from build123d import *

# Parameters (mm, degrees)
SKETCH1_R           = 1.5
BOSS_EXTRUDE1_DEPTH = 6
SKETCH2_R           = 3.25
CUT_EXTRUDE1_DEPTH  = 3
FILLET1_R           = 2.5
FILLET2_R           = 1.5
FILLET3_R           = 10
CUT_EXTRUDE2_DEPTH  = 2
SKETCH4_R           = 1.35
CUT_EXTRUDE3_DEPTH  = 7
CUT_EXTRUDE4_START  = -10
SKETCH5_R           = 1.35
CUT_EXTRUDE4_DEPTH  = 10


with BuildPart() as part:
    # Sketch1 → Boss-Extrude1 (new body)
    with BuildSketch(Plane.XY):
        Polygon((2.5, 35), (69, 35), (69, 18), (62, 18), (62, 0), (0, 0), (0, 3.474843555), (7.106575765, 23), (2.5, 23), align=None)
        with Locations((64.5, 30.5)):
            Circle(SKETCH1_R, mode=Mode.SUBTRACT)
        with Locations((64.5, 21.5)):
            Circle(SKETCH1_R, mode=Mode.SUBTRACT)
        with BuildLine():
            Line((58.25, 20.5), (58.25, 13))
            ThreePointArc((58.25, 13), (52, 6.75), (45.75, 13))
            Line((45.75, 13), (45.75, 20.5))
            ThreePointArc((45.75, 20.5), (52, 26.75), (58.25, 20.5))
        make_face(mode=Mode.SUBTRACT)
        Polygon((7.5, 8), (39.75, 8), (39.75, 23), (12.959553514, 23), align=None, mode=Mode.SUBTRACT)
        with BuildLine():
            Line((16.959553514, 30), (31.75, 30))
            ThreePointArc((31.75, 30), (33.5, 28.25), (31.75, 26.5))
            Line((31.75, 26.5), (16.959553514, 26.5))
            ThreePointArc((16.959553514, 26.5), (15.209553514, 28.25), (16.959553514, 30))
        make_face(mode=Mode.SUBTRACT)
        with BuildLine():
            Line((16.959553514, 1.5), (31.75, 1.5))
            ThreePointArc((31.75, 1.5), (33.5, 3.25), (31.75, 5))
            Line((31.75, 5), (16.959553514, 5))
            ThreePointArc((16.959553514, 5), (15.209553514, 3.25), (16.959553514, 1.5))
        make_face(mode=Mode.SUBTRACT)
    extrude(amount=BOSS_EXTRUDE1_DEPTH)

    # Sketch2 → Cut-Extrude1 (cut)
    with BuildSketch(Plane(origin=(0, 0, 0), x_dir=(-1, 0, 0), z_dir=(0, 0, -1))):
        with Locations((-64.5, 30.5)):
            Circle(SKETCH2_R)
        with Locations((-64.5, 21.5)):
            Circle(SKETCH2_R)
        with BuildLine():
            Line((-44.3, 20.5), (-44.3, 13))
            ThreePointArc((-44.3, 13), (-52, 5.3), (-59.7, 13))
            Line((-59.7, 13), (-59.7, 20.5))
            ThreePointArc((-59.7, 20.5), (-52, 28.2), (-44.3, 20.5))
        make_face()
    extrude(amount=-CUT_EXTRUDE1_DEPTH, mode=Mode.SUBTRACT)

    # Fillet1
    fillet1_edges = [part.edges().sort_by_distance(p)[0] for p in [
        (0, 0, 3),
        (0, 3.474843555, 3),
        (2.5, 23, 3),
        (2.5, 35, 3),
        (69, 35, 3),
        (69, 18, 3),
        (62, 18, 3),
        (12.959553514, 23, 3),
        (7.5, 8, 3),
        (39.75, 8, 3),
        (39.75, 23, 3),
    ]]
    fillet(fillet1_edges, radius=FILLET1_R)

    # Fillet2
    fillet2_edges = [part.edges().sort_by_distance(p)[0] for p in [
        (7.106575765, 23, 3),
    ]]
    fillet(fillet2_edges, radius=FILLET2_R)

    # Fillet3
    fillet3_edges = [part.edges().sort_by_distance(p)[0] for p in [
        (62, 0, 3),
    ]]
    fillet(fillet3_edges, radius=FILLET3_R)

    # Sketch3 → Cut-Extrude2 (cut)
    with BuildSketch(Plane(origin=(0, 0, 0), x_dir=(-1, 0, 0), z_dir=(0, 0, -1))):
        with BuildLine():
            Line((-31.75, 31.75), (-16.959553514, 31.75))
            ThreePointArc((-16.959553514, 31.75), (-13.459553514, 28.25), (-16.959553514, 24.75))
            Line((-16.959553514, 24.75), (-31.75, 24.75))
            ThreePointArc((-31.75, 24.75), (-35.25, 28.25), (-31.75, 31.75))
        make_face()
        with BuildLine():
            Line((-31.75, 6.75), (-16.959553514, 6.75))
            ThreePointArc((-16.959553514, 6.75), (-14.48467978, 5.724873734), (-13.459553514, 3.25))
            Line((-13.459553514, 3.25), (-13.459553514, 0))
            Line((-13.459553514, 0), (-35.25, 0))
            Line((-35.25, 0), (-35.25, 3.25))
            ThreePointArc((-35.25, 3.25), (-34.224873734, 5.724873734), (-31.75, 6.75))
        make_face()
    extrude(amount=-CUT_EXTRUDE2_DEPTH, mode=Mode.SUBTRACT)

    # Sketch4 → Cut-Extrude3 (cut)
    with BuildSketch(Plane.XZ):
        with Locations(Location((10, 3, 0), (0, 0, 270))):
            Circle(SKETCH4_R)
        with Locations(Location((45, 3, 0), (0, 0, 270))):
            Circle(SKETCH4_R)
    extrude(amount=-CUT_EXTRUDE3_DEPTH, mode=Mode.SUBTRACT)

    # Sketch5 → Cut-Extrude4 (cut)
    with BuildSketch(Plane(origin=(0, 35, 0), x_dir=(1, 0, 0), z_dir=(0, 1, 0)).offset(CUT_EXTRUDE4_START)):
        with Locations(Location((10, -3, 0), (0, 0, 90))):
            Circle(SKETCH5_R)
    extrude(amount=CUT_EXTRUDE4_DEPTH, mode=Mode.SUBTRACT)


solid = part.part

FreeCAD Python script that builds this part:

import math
import FreeCAD as App
import Part
import Sketcher

V = App.Vector
Q = App.Units.Quantity


def edges_at(feature, points):
    """Names of the edges that pass closest to the given points."""
    edges = feature.Shape.Edges
    near = lambda p: min(range(len(edges)), key=lambda i: edges[i].distToShape(Part.Vertex(*p))[0])
    return sorted({f"Edge{near(p) + 1}" for p in points})

doc = App.newDocument("Part")
params = doc.addObject("Spreadsheet::Sheet", "Params")
for row, (alias, value) in enumerate([
    ("sketch1_diameter", "3 mm"),
    ("sketch1_width", "62 mm"),
    ("sketch1_width2", "7 mm"),
    ("sketch1_height", "12 mm"),
    ("sketch1_height2", "18 mm"),
    ("pad1_length", "6 mm"),
    ("sketch2_diameter", "6.5 mm"),
    ("sketch2_radius", "7.7 mm"),
    ("sketch2_height", "7.5 mm"),
    ("pocket1_length", "3 mm"),
    ("fillet_radius", "2.5 mm"),
    ("fillet2_radius", "1.5 mm"),
    ("fillet3_radius", "10 mm"),
    ("sketch3_radius", "3.5 mm"),
    ("sketch3_height", "3.25 mm"),
    ("pocket2_length", "2 mm"),
    ("sketch4_diameter", "2.7 mm"),
    ("pocket3_length", "7 mm"),
    ("sketch5_diameter", "2.7 mm"),
    ("pocket4_length", "10 mm"),
], start=1):
    params.set(f"A{row}", alias)
    params.set(f"B{row}", "=" + value)
    params.setAlias(f"B{row}", alias)

body = doc.addObject("PartDesign::Body", "Body")

sketch1 = body.newObject("Sketcher::SketchObject", "Sketch")
sketch1.AttachmentSupport = (doc.getObject("XY_Plane"), [""])
sketch1.MapMode = "FlatFace"
sketch1.addGeometry([
    Part.LineSegment(V(69, 35, 0), V(2.5, 35, 0)),
    Part.LineSegment(V(2.5, 35, 0), V(2.5, 23, 0)),
    Part.LineSegment(V(2.5, 23, 0), V(7.1, 23, 0)),
    Part.LineSegment(V(7.1, 23, 0), V(0, 3.5, 0)),
    Part.LineSegment(V(0, 3.5, 0), V(0, 0, 0)),
    Part.LineSegment(V(0, 0, 0), V(62, 0, 0)),
    Part.LineSegment(V(62, 0, 0), V(62, 18, 0)),
    Part.LineSegment(V(62, 18, 0), V(69, 18, 0)),
    Part.LineSegment(V(69, 18, 0), V(69, 35, 0)),
    Part.ArcOfCircle(Part.Circle(V(17, 3.2, 0), V(0, 0, 1), 1.8), math.radians(90), math.radians(270)),
    Part.LineSegment(V(17, 5, 0), V(31.8, 5, 0)),
    Part.ArcOfCircle(Part.Circle(V(31.8, 3.2, 0), V(0, 0, 1), 1.8), math.radians(-90), math.radians(90)),
    Part.LineSegment(V(31.8, 1.5, 0), V(17, 1.5, 0)),
    Part.LineSegment(V(7.5, 8, 0), V(13, 23, 0)),
    Part.LineSegment(V(13, 23, 0), V(39.8, 23, 0)),
    Part.LineSegment(V(39.8, 23, 0), V(39.8, 8, 0)),
    Part.LineSegment(V(39.8, 8, 0), V(7.5, 8, 0)),
    Part.LineSegment(V(58.2, 20.5, 0), V(58.2, 13, 0)),
    Part.ArcOfCircle(Part.Circle(V(52, 13, 0), V(0, 0, 1), 6.2), math.radians(180), math.radians(360)),
    Part.LineSegment(V(45.8, 13, 0), V(45.8, 20.5, 0)),
    Part.ArcOfCircle(Part.Circle(V(52, 20.5, 0), V(0, 0, 1), 6.2), math.radians(0), math.radians(180)),
    Part.Circle(V(64.5, 21.5, 0), V(0, 0, 1), 1.5),
    Part.Circle(V(64.5, 30.5, 0), V(0, 0, 1), 1.5),
    Part.LineSegment(V(17, 30, 0), V(31.8, 30, 0)),
    Part.ArcOfCircle(Part.Circle(V(31.8, 28.2, 0), V(0, 0, 1), 1.8), math.radians(-90), math.radians(90)),
    Part.LineSegment(V(31.8, 26.5, 0), V(17, 26.5, 0)),
    Part.ArcOfCircle(Part.Circle(V(17, 28.2, 0), V(0, 0, 1), 1.8), math.radians(90), math.radians(270)),
], False)
sketch1.addConstraint([
    Sketcher.Constraint("Coincident", 0, 2, 1, 1),
    Sketcher.Constraint("Coincident", 1, 2, 2, 1),
    Sketcher.Constraint("Coincident", 2, 2, 3, 1),
    Sketcher.Constraint("Coincident", 3, 2, 4, 1),
    Sketcher.Constraint("Coincident", 4, 2, 5, 1),
    Sketcher.Constraint("Coincident", 5, 2, 6, 1),
    Sketcher.Constraint("Coincident", 6, 2, 7, 1),
    Sketcher.Constraint("Coincident", 7, 2, 8, 1),
    Sketcher.Constraint("Coincident", 8, 2, 0, 1),
    Sketcher.Constraint("Tangent", 9, 1, 10, 1),
    Sketcher.Constraint("Tangent", 10, 2, 11, 2),
    Sketcher.Constraint("Tangent", 11, 1, 12, 1),
    Sketcher.Constraint("Tangent", 12, 2, 9, 2),
    Sketcher.Constraint("Coincident", 13, 2, 14, 1),
    Sketcher.Constraint("Coincident", 14, 2, 15, 1),
    Sketcher.Constraint("Coincident", 15, 2, 16, 1),
    Sketcher.Constraint("Coincident", 16, 2, 13, 1),
    Sketcher.Constraint("Tangent", 17, 2, 18, 2),
    Sketcher.Constraint("Tangent", 18, 1, 19, 1),
    Sketcher.Constraint("Tangent", 19, 2, 20, 2),
    Sketcher.Constraint("Tangent", 20, 1, 17, 1),
    Sketcher.Constraint("Tangent", 23, 2, 24, 2),
    Sketcher.Constraint("Tangent", 24, 1, 25, 1),
    Sketcher.Constraint("Tangent", 25, 2, 26, 2),
    Sketcher.Constraint("Tangent", 26, 1, 23, 1),
    Sketcher.Constraint("Horizontal", 0),
    Sketcher.Constraint("Vertical", 1),
    Sketcher.Constraint("Horizontal", 2),
    Sketcher.Constraint("Vertical", 4),
    Sketcher.Constraint("Horizontal", 5),
    Sketcher.Constraint("Vertical", 6),
    Sketcher.Constraint("Horizontal", 7),
    Sketcher.Constraint("Vertical", 8),
    Sketcher.Constraint("Horizontal", 10),
    Sketcher.Constraint("Horizontal", 12),
    Sketcher.Constraint("Horizontal", 14),
    Sketcher.Constraint("Vertical", 15),
    Sketcher.Constraint("Horizontal", 16),
    Sketcher.Constraint("Vertical", 17),
    Sketcher.Constraint("Vertical", 19),
    Sketcher.Constraint("Horizontal", 23),
    Sketcher.Constraint("Horizontal", 25),
    Sketcher.Constraint("Coincident", 4, 2, -1, 1),
    Sketcher.Constraint("Equal", 21, 22),
    Sketcher.Constraint("Equal", 11, 24),
    Sketcher.Constraint("Parallel", 3, 13),
    Sketcher.Constraint("Horizontal", 2, 2, 13, 2),
    Sketcher.Constraint("Vertical", 21, 3, 22, 3),
    Sketcher.Constraint("Vertical", 11, 3, 24, 3),
    Sketcher.Constraint("Vertical", 9, 3, 26, 3),
    Sketcher.Constraint("Diameter", 21, Q("3 mm")),
    Sketcher.Constraint("DistanceX", 5, 1, 5, 2, Q("62 mm")),
    Sketcher.Constraint("DistanceX", 7, 1, 7, 2, Q("7 mm")),
    Sketcher.Constraint("DistanceY", 1, 2, 1, 1, Q("12 mm")),
    Sketcher.Constraint("DistanceY", 6, 1, 6, 2, Q("18 mm")),
    Sketcher.Constraint("DistanceY", 8, 1, 8, 2, Q("17 mm")),
    Sketcher.Constraint("DistanceY", 15, 2, 15, 1, Q("15 mm")),
    Sketcher.Constraint("Angle", 3, Q("-110 deg")),
    Sketcher.Constraint("Radius", 9, Q("1.75 mm")),
    Sketcher.Constraint("Radius", 18, Q("6.25 mm")),
    Sketcher.Constraint("DistanceX", 0, 2, 0, 1, Q("66.5 mm")),
    Sketcher.Constraint("DistanceY", 17, 2, 17, 1, Q("7.5 mm")),
    Sketcher.Constraint("DistanceX", -1, 1, 18, 3, Q("52 mm")),
    Sketcher.Constraint("DistanceY", -1, 1, 18, 3, Q("13 mm")),
    Sketcher.Constraint("DistanceY", -1, 1, 9, 1, Q("5 mm")),
    Sketcher.Constraint("DistanceY", -1, 1, 23, 2, Q("30 mm")),
    Sketcher.Constraint("DistanceY", 20, 3, 21, 3, Q("1 mm")),
    Sketcher.Constraint("DistanceY", 21, 3, 22, 3, Q("9 mm")),
    Sketcher.Constraint("DistanceX", 13, 2, 26, 3, Q("4 mm")),
    Sketcher.Constraint("DistanceX", 24, 3, 14, 2, Q("8 mm")),
    Sketcher.Constraint("DistanceX", 15, 2, 18, 1, Q("6 mm")),
    Sketcher.Constraint("DistanceX", 16, 2, 16, 1, Q("32.25 mm")),
    Sketcher.Constraint("DistanceX", -1, 1, 21, 3, Q("64.5 mm")),
    Sketcher.Constraint("DistanceX", 2, 1, 2, 2, Q("4.606576 mm")),
])
sketch1.setExpression("Constraints[50]", "Params.sketch1_diameter")
sketch1.setExpression("Constraints[51]", "Params.sketch1_width")
sketch1.setExpression("Constraints[52]", "Params.sketch1_width2")
sketch1.setExpression("Constraints[53]", "Params.sketch1_height")
sketch1.setExpression("Constraints[54]", "Params.sketch1_height2")
pad1 = body.newObject("PartDesign::Pad", "Pad")
pad1.Profile = sketch1
pad1.setExpression("Length", "Params.pad1_length")

sketch2 = body.newObject("Sketcher::SketchObject", "Sketch001")
sketch2.AttachmentSupport = (doc.getObject("XY_Plane"), [""])
sketch2.MapMode = "FlatFace"
sketch2.addGeometry([
    Part.Circle(V(64.5, 30.5, 0), V(0, 0, 1), 3.2),
    Part.Circle(V(64.5, 21.5, 0), V(0, 0, 1), 3.2),
    Part.LineSegment(V(44.3, 13, 0), V(44.3, 20.5, 0)),
    Part.ArcOfCircle(Part.Circle(V(52, 20.5, 0), V(0, 0, 1), 7.7), math.radians(0), math.radians(180)),
    Part.LineSegment(V(59.7, 20.5, 0), V(59.7, 13, 0)),
    Part.ArcOfCircle(Part.Circle(V(52, 13, 0), V(0, 0, 1), 7.7), math.radians(180), math.radians(360)),
], False)
sketch2.addConstraint([
    Sketcher.Constraint("Tangent", 2, 2, 3, 2),
    Sketcher.Constraint("Tangent", 3, 1, 4, 1),
    Sketcher.Constraint("Tangent", 4, 2, 5, 2),
    Sketcher.Constraint("Tangent", 5, 1, 2, 1),
    Sketcher.Constraint("Vertical", 2),
    Sketcher.Constraint("Vertical", 4),
    Sketcher.Constraint("Equal", 0, 1),
    Sketcher.Constraint("Vertical", 0, 3, 1, 3),
    Sketcher.Constraint("Diameter", 0, Q("6.5 mm")),
    Sketcher.Constraint("Radius", 3, Q("7.7 mm")),
    Sketcher.Constraint("DistanceY", 2, 1, 2, 2, Q("7.5 mm")),
    Sketcher.Constraint("DistanceX", -1, 1, 3, 3, Q("52 mm")),
    Sketcher.Constraint("DistanceY", -1, 1, 5, 3, Q("13 mm")),
    Sketcher.Constraint("DistanceY", 1, 3, 0, 3, Q("9 mm")),
    Sketcher.Constraint("DistanceY", 3, 3, 1, 3, Q("1 mm")),
    Sketcher.Constraint("DistanceX", -1, 1, 0, 3, Q("64.5 mm")),
])
sketch2.setExpression("Constraints[8]", "Params.sketch2_diameter")
sketch2.setExpression("Constraints[9]", "Params.sketch2_radius")
sketch2.setExpression("Constraints[10]", "Params.sketch2_height")
pocket1 = body.newObject("PartDesign::Pocket", "Pocket")
pocket1.Profile = sketch2
pocket1.setExpression("Length", "Params.pocket1_length")
pocket1.Reversed = True
doc.recompute()

fillet = body.newObject("PartDesign::Fillet", "Fillet")
fillet.Base = (pocket1, edges_at(pocket1, [
    (0, 0, 3),
    (0, 3.475, 3),
    (2.5, 23, 3),
    (2.5, 35, 3),
    (69, 35, 3),
    (69, 18, 3),
    (62, 18, 3),
    (12.96, 23, 3),
    (7.5, 8, 3),
    (39.75, 8, 3),
    (39.75, 23, 3),
]))
fillet.setExpression("Radius", "Params.fillet_radius")
doc.recompute()

fillet2 = body.newObject("PartDesign::Fillet", "Fillet001")
fillet2.Base = (fillet, edges_at(fillet, [(7.107, 23, 3)]))
fillet2.setExpression("Radius", "Params.fillet2_radius")
doc.recompute()

fillet3 = body.newObject("PartDesign::Fillet", "Fillet002")
fillet3.Base = (fillet2, edges_at(fillet2, [(62, 0, 3)]))
fillet3.setExpression("Radius", "Params.fillet3_radius")

sketch3 = body.newObject("Sketcher::SketchObject", "Sketch002")
sketch3.AttachmentSupport = (doc.getObject("XY_Plane"), [""])
sketch3.MapMode = "FlatFace"
sketch3.addGeometry([
    Part.LineSegment(V(17, 31.8, 0), V(31.8, 31.8, 0)),
    Part.ArcOfCircle(Part.Circle(V(31.8, 28.2, 0), V(0, 0, 1), 3.5), math.radians(-90), math.radians(90)),
    Part.LineSegment(V(31.8, 24.8, 0), V(17, 24.8, 0)),
    Part.ArcOfCircle(Part.Circle(V(17, 28.2, 0), V(0, 0, 1), 3.5), math.radians(90), math.radians(270)),
    Part.LineSegment(V(17, 6.8, 0), V(31.8, 6.8, 0)),
    Part.ArcOfCircle(Part.Circle(V(31.7, 3.2, 0), V(0, 0, 1), 3.5), math.radians(0), math.radians(90)),
    Part.LineSegment(V(35.2, 3.2, 0), V(35.2, 0, 0)),
    Part.LineSegment(V(35.2, 0, 0), V(13.5, 0, 0)),
    Part.LineSegment(V(13.5, 0, 0), V(13.5, 3.2, 0)),
    Part.ArcOfCircle(Part.Circle(V(17, 3.2, 0), V(0, 0, 1), 3.5), math.radians(90), math.radians(180)),
], False)
sketch3.addConstraint([
    Sketcher.Constraint("Tangent", 0, 2, 1, 2),
    Sketcher.Constraint("Tangent", 1, 1, 2, 1),
    Sketcher.Constraint("Tangent", 2, 2, 3, 2),
    Sketcher.Constraint("Tangent", 3, 1, 0, 1),
    Sketcher.Constraint("Tangent", 4, 2, 5, 2),
    Sketcher.Constraint("Tangent", 5, 1, 6, 1),
    Sketcher.Constraint("Coincident", 6, 2, 7, 1),
    Sketcher.Constraint("Coincident", 7, 2, 8, 1),
    Sketcher.Constraint("Tangent", 8, 2, 9, 2),
    Sketcher.Constraint("Tangent", 9, 1, 4, 1),
    Sketcher.Constraint("Horizontal", 0),
    Sketcher.Constraint("Horizontal", 2),
    Sketcher.Constraint("Horizontal", 4),
    Sketcher.Constraint("Vertical", 6),
    Sketcher.Constraint("Horizontal", 7),
    Sketcher.Constraint("Vertical", 8),
    Sketcher.Constraint("Equal", 3, 5),
    Sketcher.Constraint("Equal", 5, 9),
    Sketcher.Constraint("PointOnObject", 6, 2, -1),
    Sketcher.Constraint("Vertical", 1, 3, 5, 3),
    Sketcher.Constraint("Vertical", 3, 3, 9, 3),
    Sketcher.Constraint("Radius", 1, Q("3.5 mm")),
    Sketcher.Constraint("DistanceY", 5, 3, 1, 3, Q("25 mm")),
    Sketcher.Constraint("DistanceY", 6, 2, 6, 1, Q("3.25 mm")),
    Sketcher.Constraint("DistanceX", -1, 1, 1, 3, Q("31.75 mm")),
    Sketcher.Constraint("DistanceX", 0, 1, 0, 2, Q("14.790446 mm")),
])
sketch3.setExpression("Constraints[21]", "Params.sketch3_radius")
sketch3.setExpression("Constraints[23]", "Params.sketch3_height")
pocket2 = body.newObject("PartDesign::Pocket", "Pocket001")
pocket2.Profile = sketch3
pocket2.setExpression("Length", "Params.pocket2_length")
pocket2.Reversed = True

sketch4 = body.newObject("Sketcher::SketchObject", "Sketch003")
sketch4.AttachmentSupport = (doc.getObject("XZ_Plane"), [""])
sketch4.MapMode = "FlatFace"
sketch4.addGeometry([
    Part.Circle(V(10, 3, 0), V(0, 0, 1), 1.4),
    Part.Circle(V(45, 3, 0), V(0, 0, 1), 1.4),
], False)
sketch4.addConstraint([
    Sketcher.Constraint("Equal", 0, 1),
    Sketcher.Constraint("Horizontal", 0, 3, 1, 3),
    Sketcher.Constraint("Diameter", 0, Q("2.7 mm")),
    Sketcher.Constraint("DistanceX", -1, 1, 0, 3, Q("10 mm")),
    Sketcher.Constraint("DistanceY", -1, 1, 0, 3, Q("3 mm")),
    Sketcher.Constraint("DistanceX", -1, 1, 1, 3, Q("45 mm")),
])
sketch4.setExpression("Constraints[2]", "Params.sketch4_diameter")
pocket3 = body.newObject("PartDesign::Pocket", "Pocket002")
pocket3.Profile = sketch4
pocket3.setExpression("Length", "Params.pocket3_length")

sketch5 = body.newObject("Sketcher::SketchObject", "Sketch004")
sketch5.AttachmentSupport = (doc.getObject("XZ_Plane"), [""])
sketch5.MapMode = "FlatFace"
sketch5.AttachmentOffset = App.Placement(V(0, 0, -25), App.Rotation())
sketch5.addGeometry(Part.Circle(V(10, 3, 0), V(0, 0, 1), 1.4), False)
sketch5.addConstraint([
    Sketcher.Constraint("Diameter", 0, Q("2.7 mm")),
    Sketcher.Constraint("DistanceX", -1, 1, 0, 3, Q("10 mm")),
    Sketcher.Constraint("DistanceY", -1, 1, 0, 3, Q("3 mm")),
])
sketch5.setExpression("Constraints[0]", "Params.sketch5_diameter")
pocket4 = body.newObject("PartDesign::Pocket", "Pocket003")
pocket4.Profile = sketch5
pocket4.setExpression("Length", "Params.pocket4_length")

doc.recompute()
